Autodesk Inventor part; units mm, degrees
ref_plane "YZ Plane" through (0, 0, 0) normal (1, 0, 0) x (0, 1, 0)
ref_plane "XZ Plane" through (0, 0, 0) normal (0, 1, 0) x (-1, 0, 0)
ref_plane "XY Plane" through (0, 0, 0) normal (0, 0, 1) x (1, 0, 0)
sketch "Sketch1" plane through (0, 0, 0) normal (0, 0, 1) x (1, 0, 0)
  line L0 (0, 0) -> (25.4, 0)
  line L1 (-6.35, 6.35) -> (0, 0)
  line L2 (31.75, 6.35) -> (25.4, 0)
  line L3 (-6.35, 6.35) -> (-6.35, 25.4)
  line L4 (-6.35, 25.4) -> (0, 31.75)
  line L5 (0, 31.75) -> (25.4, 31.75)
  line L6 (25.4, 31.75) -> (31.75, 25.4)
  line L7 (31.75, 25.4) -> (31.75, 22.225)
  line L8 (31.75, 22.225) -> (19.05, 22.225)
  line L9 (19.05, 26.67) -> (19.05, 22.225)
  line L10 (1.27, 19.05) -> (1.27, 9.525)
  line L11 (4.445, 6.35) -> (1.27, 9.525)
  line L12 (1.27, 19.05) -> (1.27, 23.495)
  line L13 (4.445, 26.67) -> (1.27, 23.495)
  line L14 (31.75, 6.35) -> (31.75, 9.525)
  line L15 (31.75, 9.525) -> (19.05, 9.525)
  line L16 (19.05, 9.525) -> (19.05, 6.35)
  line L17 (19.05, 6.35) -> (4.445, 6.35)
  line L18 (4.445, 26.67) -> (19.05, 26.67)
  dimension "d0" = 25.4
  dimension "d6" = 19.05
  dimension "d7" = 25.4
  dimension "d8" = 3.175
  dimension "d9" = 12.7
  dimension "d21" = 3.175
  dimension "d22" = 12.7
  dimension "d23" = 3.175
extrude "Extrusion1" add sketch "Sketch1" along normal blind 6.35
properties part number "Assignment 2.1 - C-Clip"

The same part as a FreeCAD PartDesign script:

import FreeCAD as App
import Part
import Sketcher
Q = App.Units.Quantity

doc = App.newDocument("Part")
params = doc.addObject("Spreadsheet::Sheet", "Params")
for row, (alias, value) in enumerate([
    ("sketch1_width", "1 in"),
    ("sketch1_width2", "0.5 in"),
    ("sketch1_height", "0.75 in"),
    ("sketch1_height2", "0.55 in"),
    ("pad1_length", "0.25 in"),
], start=1):
    params.set(f"A{row}", alias)
    params.set(f"B{row}", "=" + value)
    params.setAlias(f"B{row}", alias)

body = doc.addObject("PartDesign::Body", "Body")

# Sketch on XY plane
sketch1 = body.newObject("Sketcher::SketchObject", "Sketch")
sketch1.AttachmentSupport = (doc.getObject("XY_Plane"), [""])
sketch1.MapMode = "FlatFace"
sketch1.addGeometry(Part.LineSegment(App.Vector(-6.3, 6.3, 0), App.Vector(0, 0, 0)), False)
sketch1.addGeometry(Part.LineSegment(App.Vector(0, 0, 0), App.Vector(25.4, 0, 0)), False)
sketch1.addGeometry(Part.LineSegment(App.Vector(25.4, 0, 0), App.Vector(31.8, 6.3, 0)), False)
sketch1.addGeometry(Part.LineSegment(App.Vector(31.8, 6.3, 0), App.Vector(31.8, 9.5, 0)), False)
sketch1.addGeometry(Part.LineSegment(App.Vector(31.8, 9.5, 0), App.Vector(19.1, 9.5, 0)), False)
sketch1.addGeometry(Part.LineSegment(App.Vector(19.1, 9.5, 0), App.Vector(19.1, 6.3, 0)), False)
sketch1.addGeometry(Part.LineSegment(App.Vector(19.1, 6.3, 0), App.Vector(4.4, 6.3, 0)), False)
sketch1.addGeometry(Part.LineSegment(App.Vector(4.4, 6.3, 0), App.Vector(1.3, 9.5, 0)), False)
sketch1.addGeometry(Part.LineSegment(App.Vector(1.3, 9.5, 0), App.Vector(1.3, 23.5, 0)), False)
sketch1.addGeometry(Part.LineSegment(App.Vector(1.3, 23.5, 0), App.Vector(4.4, 26.7, 0)), False)
sketch1.addGeometry(Part.LineSegment(App.Vector(4.4, 26.7, 0), App.Vector(19.1, 26.7, 0)), False)
sketch1.addGeometry(Part.LineSegment(App.Vector(19.1, 26.7, 0), App.Vector(19.1, 22.2, 0)), False)
sketch1.addGeometry(Part.LineSegment(App.Vector(19.1, 22.2, 0), App.Vector(31.8, 22.2, 0)), False)
sketch1.addGeometry(Part.LineSegment(App.Vector(31.8, 22.2, 0), App.Vector(31.8, 25.4, 0)), False)
sketch1.addGeometry(Part.LineSegment(App.Vector(31.8, 25.4, 0), App.Vector(25.4, 31.8, 0)), False)
sketch1.addGeometry(Part.LineSegment(App.Vector(25.4, 31.8, 0), App.Vector(0, 31.8, 0)), False)
sketch1.addGeometry(Part.LineSegment(App.Vector(0, 31.8, 0), App.Vector(-6.3, 25.4, 0)), False)
sketch1.addGeometry(Part.LineSegment(App.Vector(-6.3, 25.4, 0), App.Vector(-6.3, 6.3, 0)), False)
sketch1.addConstraint(Sketcher.Constraint("Coincident", 0, 2, 1, 1))
sketch1.addConstraint(Sketcher.Constraint("Coincident", 1, 2, 2, 1))
sketch1.addConstraint(Sketcher.Constraint("Coincident", 2, 2, 3, 1))
sketch1.addConstraint(Sketcher.Constraint("Coincident", 3, 2, 4, 1))
sketch1.addConstraint(Sketcher.Constraint("Coincident", 4, 2, 5, 1))
sketch1.addConstraint(Sketcher.Constraint("Coincident", 5, 2, 6, 1))
sketch1.addConstraint(Sketcher.Constraint("Coincident", 6, 2, 7, 1))
sketch1.addConstraint(Sketcher.Constraint("Coincident", 7, 2, 8, 1))
sketch1.addConstraint(Sketcher.Constraint("Coincident", 8, 2, 9, 1))
sketch1.addConstraint(Sketcher.Constraint("Coincident", 9, 2, 10, 1))
sketch1.addConstraint(Sketcher.Constraint("Coincident", 10, 2, 11, 1))
sketch1.addConstraint(Sketcher.Constraint("Coincident", 11, 2, 12, 1))
sketch1.addConstraint(Sketcher.Constraint("Coincident", 12, 2, 13, 1))
sketch1.addConstraint(Sketcher.Constraint("Coincident", 13, 2, 14, 1))
sketch1.addConstraint(Sketcher.Constraint("Coincident", 14, 2, 15, 1))
sketch1.addConstraint(Sketcher.Constraint("Coincident", 15, 2, 16, 1))
sketch1.addConstraint(Sketcher.Constraint("Coincident", 16, 2, 17, 1))
sketch1.addConstraint(Sketcher.Constraint("Coincident", 17, 2, 0, 1))
sketch1.addConstraint(Sketcher.Constraint("Horizontal", 1))
sketch1.addConstraint(Sketcher.Constraint("Vertical", 3))
sketch1.addConstraint(Sketcher.Constraint("Horizontal", 4))
sketch1.addConstraint(Sketcher.Constraint("Vertical", 5))
sketch1.addConstraint(Sketcher.Constraint("Horizontal", 6))
sketch1.addConstraint(Sketcher.Constraint("Vertical", 8))
sketch1.addConstraint(Sketcher.Constraint("Horizontal", 10))
sketch1.addConstraint(Sketcher.Constraint("Vertical", 11))
sketch1.addConstraint(Sketcher.Constraint("Horizontal", 12))
sketch1.addConstraint(Sketcher.Constraint("Vertical", 13))
sketch1.addConstraint(Sketcher.Constraint("Horizontal", 15))
sketch1.addConstraint(Sketcher.Constraint("Vertical", 17))
sketch1.addConstraint(Sketcher.Constraint("Coincident", 0, 2, -1, 1))
sketch1.addConstraint(Sketcher.Constraint("PointOnObject", 15, 2, -2))
sketch1.addConstraint(Sketcher.Constraint("Perpendicular", 0, 2))
sketch1.addConstraint(Sketcher.Constraint("Perpendicular", 2, 7))
sketch1.addConstraint(Sketcher.Constraint("Perpendicular", 7, 9))
sketch1.addConstraint(Sketcher.Constraint("Perpendicular", 9, 14))
sketch1.addConstraint(Sketcher.Constraint("Perpendicular", 14, 16))
sketch1.addConstraint(Sketcher.Constraint("Horizontal", 2, 2, 5, 2))
sketch1.addConstraint(Sketcher.Constraint("Horizontal", 4, 2, 7, 2))
sketch1.addConstraint(Sketcher.Constraint("Horizontal", 13, 2, 16, 2))
sketch1.addConstraint(Sketcher.Constraint("Horizontal", 6, 2, 17, 2))
sketch1.addConstraint(Sketcher.Constraint("Vertical", 6, 2, 9, 2))
sketch1.addConstraint(Sketcher.Constraint("Vertical", 5, 2, 10, 2))
sketch1.addConstraint(Sketcher.Constraint("Vertical", 3, 2, 12, 2))
sketch1.addConstraint(Sketcher.Constraint("Vertical", 1, 2, 14, 2))
sketch1.addConstraint(Sketcher.Constraint("Equal", 5, 13))
sketch1.addConstraint(Sketcher.Constraint("DistanceX", 1, 1, 1, 2, Q("1 in")))
sketch1.addConstraint(Sketcher.Constraint("DistanceX", 4, 2, 4, 1, Q("0.5 in")))
sketch1.addConstraint(Sketcher.Constraint("DistanceY", -1, 1, 13, 2, Q("1 in")))
sketch1.addConstraint(Sketcher.Constraint("DistanceY", 17, 2, 17, 1, Q("0.75 in")))
sketch1.addConstraint(Sketcher.Constraint("DistanceY", 4, 2, 11, 2, Q("0.5 in")))
sketch1.addConstraint(Sketcher.Constraint("DistanceY", 8, 1, 8, 2, Q("0.55 in")))
sketch1.addConstraint(Sketcher.Constraint("DistanceX", 7, 2, 4, 2, Q("0.7 in")))
sketch1.setExpression("Constraints[46]", "Params.sketch1_width")
sketch1.setExpression("Constraints[47]", "Params.sketch1_width2")
sketch1.setExpression("Constraints[49]", "Params.sketch1_height")
sketch1.setExpression("Constraints[51]", "Params.sketch1_height2")
pad1 = body.newObject("PartDesign::Pad", "Pad")
pad1.Profile = sketch1
pad1.setExpression("Length", "Params.pad1_length")

doc.recompute()
